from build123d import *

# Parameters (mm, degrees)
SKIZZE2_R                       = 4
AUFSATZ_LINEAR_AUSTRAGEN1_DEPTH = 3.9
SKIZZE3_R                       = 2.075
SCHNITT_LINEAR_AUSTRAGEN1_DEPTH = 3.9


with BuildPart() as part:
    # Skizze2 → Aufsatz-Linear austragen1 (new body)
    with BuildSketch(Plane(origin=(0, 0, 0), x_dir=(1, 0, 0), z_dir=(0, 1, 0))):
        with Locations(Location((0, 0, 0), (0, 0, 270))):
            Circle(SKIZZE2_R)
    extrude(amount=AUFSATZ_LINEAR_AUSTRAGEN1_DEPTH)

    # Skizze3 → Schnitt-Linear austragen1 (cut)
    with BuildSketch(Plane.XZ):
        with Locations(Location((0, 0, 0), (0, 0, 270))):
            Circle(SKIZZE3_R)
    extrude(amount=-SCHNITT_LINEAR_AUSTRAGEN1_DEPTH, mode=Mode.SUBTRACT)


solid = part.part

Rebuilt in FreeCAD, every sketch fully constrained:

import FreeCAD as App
import Part
import Sketcher
Q = App.Units.Quantity

doc = App.newDocument("Part")
body = doc.addObject("PartDesign::Body", "Body")

sketch1 = doc.addObject("Sketcher::SketchObject", "Sketch")
body.addObject(sketch1)
sketch1.AttachmentSupport = (doc.XZ_Plane, [""])
sketch1.MapMode = "FlatFace"
sketch1.addGeometry(Part.Circle(App.Vector(0, 0, 0), App.Vector(0, 0, 1), 4), False)
sketch1.addConstraint([
    Sketcher.Constraint("Coincident", 0, 3, -1, 1),
    Sketcher.Constraint("Diameter", 0, Q("8 mm")),
])
pad1 = doc.addObject("PartDesign::Pad", "Pad")
body.addObject(pad1)
pad1.Profile = sketch1
pad1.Length = 3.9
pad1.Reversed = True

sketch2 = doc.addObject("Sketcher::SketchObject", "Sketch001")
body.addObject(sketch2)
sketch2.AttachmentSupport = (doc.XZ_Plane, [""])
sketch2.MapMode = "FlatFace"
sketch2.addGeometry(Part.Circle(App.Vector(0, 0, 0), App.Vector(0, 0, 1), 2.075), False)
sketch2.addConstraint([
    Sketcher.Constraint("Coincident", 0, 3, -1, 1),
    Sketcher.Constraint("Diameter", 0, Q("4.15 mm")),
])
pocket1 = doc.addObject("PartDesign::Pocket", "Pocket")
body.addObject(pocket1)
pocket1.Profile = sketch2
pocket1.Length = 3.9

doc.recompute()
